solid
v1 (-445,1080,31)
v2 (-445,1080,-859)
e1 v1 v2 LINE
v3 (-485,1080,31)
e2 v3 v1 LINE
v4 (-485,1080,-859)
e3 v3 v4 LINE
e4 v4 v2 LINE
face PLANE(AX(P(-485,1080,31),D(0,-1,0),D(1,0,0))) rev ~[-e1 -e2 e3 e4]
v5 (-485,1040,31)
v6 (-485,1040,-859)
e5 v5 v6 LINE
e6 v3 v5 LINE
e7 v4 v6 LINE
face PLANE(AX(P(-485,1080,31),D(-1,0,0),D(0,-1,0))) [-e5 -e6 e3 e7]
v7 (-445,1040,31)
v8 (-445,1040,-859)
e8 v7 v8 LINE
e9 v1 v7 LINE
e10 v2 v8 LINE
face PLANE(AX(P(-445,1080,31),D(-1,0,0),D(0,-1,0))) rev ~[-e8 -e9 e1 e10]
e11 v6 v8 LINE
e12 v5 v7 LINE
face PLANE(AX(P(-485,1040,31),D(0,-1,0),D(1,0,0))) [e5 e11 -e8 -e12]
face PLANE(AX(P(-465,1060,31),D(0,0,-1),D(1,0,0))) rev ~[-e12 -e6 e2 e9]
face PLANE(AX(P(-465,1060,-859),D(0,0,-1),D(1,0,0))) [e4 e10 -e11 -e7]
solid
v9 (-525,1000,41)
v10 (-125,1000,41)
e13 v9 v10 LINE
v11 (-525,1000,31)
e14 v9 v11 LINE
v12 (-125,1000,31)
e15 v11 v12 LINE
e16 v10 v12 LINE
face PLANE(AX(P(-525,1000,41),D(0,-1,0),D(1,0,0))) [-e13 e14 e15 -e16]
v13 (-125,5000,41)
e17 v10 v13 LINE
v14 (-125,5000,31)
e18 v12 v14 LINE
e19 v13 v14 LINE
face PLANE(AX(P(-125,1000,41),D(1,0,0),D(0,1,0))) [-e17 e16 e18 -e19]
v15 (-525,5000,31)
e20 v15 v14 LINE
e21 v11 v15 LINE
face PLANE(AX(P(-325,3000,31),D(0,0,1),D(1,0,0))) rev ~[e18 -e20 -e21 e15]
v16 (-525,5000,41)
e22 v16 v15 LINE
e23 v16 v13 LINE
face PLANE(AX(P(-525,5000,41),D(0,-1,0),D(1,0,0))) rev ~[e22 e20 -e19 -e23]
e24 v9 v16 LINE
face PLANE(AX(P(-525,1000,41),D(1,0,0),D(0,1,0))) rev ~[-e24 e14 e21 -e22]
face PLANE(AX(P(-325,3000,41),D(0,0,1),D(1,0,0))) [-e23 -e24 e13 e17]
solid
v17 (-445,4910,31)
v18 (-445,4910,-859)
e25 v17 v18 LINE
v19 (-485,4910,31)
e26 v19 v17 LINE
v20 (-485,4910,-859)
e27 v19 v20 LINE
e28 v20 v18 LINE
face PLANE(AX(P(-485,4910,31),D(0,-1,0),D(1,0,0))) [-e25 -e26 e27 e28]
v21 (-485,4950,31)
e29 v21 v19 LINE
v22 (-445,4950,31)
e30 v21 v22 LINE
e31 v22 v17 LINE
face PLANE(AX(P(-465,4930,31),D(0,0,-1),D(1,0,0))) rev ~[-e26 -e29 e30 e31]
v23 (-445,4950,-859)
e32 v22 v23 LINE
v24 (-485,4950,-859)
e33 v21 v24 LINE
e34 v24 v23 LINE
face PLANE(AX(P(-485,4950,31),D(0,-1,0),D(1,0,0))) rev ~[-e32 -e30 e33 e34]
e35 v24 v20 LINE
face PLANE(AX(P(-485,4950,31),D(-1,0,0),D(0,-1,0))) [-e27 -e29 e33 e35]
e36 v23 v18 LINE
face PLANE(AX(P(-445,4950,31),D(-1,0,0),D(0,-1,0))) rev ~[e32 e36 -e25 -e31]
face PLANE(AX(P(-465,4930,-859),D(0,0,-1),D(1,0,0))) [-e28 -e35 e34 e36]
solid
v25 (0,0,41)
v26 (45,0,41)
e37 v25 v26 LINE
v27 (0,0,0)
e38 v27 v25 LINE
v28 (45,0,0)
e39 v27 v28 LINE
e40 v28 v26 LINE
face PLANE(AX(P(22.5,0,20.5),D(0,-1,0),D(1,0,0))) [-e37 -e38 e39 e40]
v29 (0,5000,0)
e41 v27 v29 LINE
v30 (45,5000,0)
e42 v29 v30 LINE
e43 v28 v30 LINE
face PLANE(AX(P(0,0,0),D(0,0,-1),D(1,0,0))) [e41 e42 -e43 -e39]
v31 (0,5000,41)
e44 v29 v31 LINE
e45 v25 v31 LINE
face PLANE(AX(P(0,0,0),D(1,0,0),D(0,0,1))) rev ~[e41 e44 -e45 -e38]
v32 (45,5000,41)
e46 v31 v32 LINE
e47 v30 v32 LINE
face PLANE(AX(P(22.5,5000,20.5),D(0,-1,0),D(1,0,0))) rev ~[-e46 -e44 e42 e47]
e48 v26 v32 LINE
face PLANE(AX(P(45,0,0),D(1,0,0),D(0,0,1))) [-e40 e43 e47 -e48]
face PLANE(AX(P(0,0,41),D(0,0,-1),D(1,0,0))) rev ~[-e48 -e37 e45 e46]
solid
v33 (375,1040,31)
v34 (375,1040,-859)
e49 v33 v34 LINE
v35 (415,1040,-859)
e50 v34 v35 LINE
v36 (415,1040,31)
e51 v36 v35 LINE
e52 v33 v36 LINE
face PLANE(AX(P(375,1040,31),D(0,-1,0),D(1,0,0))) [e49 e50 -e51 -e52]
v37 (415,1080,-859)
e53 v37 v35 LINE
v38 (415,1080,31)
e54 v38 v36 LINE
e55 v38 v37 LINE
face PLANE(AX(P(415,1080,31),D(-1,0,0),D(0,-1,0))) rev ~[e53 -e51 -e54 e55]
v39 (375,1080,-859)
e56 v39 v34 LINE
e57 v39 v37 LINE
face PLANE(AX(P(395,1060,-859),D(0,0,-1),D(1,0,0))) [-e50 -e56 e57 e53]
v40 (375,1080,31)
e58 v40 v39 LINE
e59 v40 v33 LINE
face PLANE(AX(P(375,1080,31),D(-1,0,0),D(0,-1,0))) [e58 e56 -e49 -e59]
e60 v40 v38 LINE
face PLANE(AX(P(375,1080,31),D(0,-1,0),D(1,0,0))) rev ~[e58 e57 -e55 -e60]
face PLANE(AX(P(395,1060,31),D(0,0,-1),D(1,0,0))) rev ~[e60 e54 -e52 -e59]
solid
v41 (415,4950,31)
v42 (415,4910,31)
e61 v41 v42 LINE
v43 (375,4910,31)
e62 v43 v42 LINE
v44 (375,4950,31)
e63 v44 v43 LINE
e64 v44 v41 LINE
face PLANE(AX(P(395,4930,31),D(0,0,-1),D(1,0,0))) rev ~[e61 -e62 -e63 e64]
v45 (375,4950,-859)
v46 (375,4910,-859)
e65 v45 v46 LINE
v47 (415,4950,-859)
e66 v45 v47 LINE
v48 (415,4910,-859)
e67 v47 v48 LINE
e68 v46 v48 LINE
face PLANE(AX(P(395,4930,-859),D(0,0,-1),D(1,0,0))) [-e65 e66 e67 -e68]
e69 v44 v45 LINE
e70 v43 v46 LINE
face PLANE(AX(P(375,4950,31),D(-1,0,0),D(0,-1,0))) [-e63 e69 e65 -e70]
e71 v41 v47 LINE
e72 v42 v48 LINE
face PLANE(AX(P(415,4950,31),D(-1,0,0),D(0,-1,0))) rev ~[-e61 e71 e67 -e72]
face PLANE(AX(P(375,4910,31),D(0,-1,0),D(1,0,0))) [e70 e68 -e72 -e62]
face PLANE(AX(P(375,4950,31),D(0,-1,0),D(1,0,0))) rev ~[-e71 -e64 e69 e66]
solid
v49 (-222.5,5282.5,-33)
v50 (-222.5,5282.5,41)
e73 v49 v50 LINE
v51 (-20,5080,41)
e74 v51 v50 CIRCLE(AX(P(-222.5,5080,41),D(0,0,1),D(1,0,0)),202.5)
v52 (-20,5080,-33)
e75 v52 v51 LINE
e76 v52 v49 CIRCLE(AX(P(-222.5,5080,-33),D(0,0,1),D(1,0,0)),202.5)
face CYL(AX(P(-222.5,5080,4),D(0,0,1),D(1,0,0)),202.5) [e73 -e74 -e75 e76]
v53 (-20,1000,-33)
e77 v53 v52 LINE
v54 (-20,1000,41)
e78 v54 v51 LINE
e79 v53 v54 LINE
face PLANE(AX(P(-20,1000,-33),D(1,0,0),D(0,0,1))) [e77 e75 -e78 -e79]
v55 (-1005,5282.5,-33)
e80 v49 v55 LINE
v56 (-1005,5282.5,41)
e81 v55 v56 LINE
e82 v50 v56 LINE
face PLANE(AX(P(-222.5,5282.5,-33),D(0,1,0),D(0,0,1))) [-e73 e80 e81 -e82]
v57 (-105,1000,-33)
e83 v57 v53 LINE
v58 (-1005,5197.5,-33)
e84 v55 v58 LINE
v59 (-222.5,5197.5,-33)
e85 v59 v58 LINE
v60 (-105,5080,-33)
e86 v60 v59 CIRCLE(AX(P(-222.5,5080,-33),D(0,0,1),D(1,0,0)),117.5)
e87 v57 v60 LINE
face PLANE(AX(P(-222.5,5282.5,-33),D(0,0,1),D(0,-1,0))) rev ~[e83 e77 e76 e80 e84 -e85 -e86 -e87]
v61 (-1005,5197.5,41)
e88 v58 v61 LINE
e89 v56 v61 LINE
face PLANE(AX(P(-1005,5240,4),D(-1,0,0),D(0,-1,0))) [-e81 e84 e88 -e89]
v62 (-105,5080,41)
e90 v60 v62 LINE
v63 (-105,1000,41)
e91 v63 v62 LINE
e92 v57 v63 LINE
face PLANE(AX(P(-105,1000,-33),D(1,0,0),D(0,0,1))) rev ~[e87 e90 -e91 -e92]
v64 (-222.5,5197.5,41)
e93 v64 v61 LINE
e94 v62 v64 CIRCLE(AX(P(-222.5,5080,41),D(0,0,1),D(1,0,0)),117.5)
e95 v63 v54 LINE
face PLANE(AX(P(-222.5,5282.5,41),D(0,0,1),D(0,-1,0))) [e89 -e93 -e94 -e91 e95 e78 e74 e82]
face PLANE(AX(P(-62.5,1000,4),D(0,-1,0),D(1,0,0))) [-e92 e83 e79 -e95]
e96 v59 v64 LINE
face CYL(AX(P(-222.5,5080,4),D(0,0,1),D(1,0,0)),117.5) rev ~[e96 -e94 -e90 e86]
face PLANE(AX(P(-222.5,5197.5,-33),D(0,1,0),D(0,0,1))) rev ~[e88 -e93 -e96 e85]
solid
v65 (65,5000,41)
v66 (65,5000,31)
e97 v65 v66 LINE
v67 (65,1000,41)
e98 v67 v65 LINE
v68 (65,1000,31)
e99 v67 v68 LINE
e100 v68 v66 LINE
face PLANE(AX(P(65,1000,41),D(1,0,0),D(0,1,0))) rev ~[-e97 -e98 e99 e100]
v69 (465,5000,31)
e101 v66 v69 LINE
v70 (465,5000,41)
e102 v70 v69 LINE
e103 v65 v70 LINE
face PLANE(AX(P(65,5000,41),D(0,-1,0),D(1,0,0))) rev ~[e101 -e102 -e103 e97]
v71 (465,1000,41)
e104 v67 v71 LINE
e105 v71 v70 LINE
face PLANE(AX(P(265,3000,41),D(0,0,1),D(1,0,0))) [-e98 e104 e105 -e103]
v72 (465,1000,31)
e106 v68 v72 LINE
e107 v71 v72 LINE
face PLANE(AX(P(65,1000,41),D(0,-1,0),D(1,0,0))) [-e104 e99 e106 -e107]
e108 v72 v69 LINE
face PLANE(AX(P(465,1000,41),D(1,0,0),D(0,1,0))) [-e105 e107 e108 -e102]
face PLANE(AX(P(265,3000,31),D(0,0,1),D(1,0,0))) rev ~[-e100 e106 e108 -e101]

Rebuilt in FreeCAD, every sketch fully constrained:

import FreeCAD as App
import Part
import Sketcher
from FreeCAD import Vector


def add_polygon(sketch, points):
    """Adds a closed chain of lines whose ends are joined by coincident constraints."""
    first, n = sketch.GeometryCount, len(points)
    for a, b in zip(points, points[1:] + points[:1]):
        sketch.addGeometry(Part.LineSegment(App.Vector(*a, 0), App.Vector(*b, 0)), False)
    for i in range(n):
        sketch.addConstraint(Sketcher.Constraint("Coincident", first + i, 2, first + (i + 1) % n, 1))

doc = App.newDocument("Part")
params = doc.addObject("Spreadsheet::Sheet", "Params")
for row, (alias, value) in enumerate([
    ("sketch1_width", "45 mm"),
    ("sketch1_height", "41 mm"),
    ("pad1_length", "5000 mm"),
    ("sketch2_width", "85 mm"),
    ("sketch2_height", "74 mm"),
    ("pad2_length", "4080 mm"),
    ("sketch3_width", "85 mm"),
    ("sketch3_height", "74 mm"),
    ("revolution_angle", "90 deg"),
    ("sketch4_width", "85 mm"),
    ("sketch4_height", "74 mm"),
    ("pad3_length", "782.5 mm"),
    ("sketch5_width", "400 mm"),
    ("sketch5_height", "4000 mm"),
    ("pad4_length", "10 mm"),
    ("sketch6_width", "40 mm"),
    ("pad5_length", "890 mm"),
], start=1):
    params.set(f"A{row}", alias)
    params.set(f"B{row}", "=" + value)
    params.setAlias(f"B{row}", alias)

body = doc.addObject("PartDesign::Body", "Body")

# Sketch on XZ plane
sketch1 = body.newObject("Sketcher::SketchObject", "Sketch")
sketch1.AttachmentSupport = (doc.getObject("XZ_Plane"), [""])
sketch1.MapMode = "FlatFace"
add_polygon(sketch1, [(0, 41), (0, 0), (45, 0), (45, 41)])  # lines 0-3
sketch1.addConstraint(Sketcher.Constraint("Vertical", 0))
sketch1.addConstraint(Sketcher.Constraint("Horizontal", 1))
sketch1.addConstraint(Sketcher.Constraint("Vertical", 2))
sketch1.addConstraint(Sketcher.Constraint("Horizontal", 3))
sketch1.addConstraint(Sketcher.Constraint("Coincident", 0, 2, -1, 1))
sketch1.addConstraint(Sketcher.Constraint("DistanceX", 1, 1, 1, 2, 45.0))
sketch1.addConstraint(Sketcher.Constraint("DistanceY", 0, 2, 0, 1, 41.0))
sketch1.setExpression("Constraints[9]", "Params.sketch1_width")
sketch1.setExpression("Constraints[10]", "Params.sketch1_height")
pad1 = body.newObject("PartDesign::Pad", "Pad")
pad1.Profile = sketch1
pad1.setExpression("Length", "Params.pad1_length")
pad1.Reversed = True
body2 = doc.addObject("PartDesign::Body", "Body001")

# Sketch on XZ plane
sketch2 = body2.newObject("Sketcher::SketchObject", "Sketch001")
sketch2.AttachmentSupport = (doc.getObject("XZ_Plane001"), [""])
sketch2.MapMode = "FlatFace"
sketch2.AttachmentOffset = App.Placement(Vector(0, 0, -1000), App.Rotation())
add_polygon(sketch2, [(-105, 41), (-105, -33), (-20, -33), (-20, 41)])  # lines 0-3
sketch2.addConstraint(Sketcher.Constraint("Vertical", 0))
sketch2.addConstraint(Sketcher.Constraint("Horizontal", 1))
sketch2.addConstraint(Sketcher.Constraint("Vertical", 2))
sketch2.addConstraint(Sketcher.Constraint("Horizontal", 3))
sketch2.addConstraint(Sketcher.Constraint("DistanceX", 1, 1, 1, 2, 85.0))
sketch2.addConstraint(Sketcher.Constraint("DistanceY", 0, 2, 0, 1, 74.0))
sketch2.addConstraint(Sketcher.Constraint("DistanceX", 0, 2, -1, 1, 105.0))
sketch2.addConstraint(Sketcher.Constraint("DistanceY", 0, 2, -1, 1, 33.0))
sketch2.setExpression("Constraints[8]", "Params.sketch2_width")
sketch2.setExpression("Constraints[9]", "Params.sketch2_height")
pad2 = body2.newObject("PartDesign::Pad", "Pad001")
pad2.Profile = sketch2
pad2.setExpression("Length", "Params.pad2_length")
pad2.Reversed = True

# Sketch on XZ plane
sketch3 = body2.newObject("Sketcher::SketchObject", "Sketch002")
sketch3.AttachmentSupport = (doc.getObject("XZ_Plane001"), [""])
sketch3.MapMode = "FlatFace"
sketch3.AttachmentOffset = App.Placement(Vector(0, 0, -5080), App.Rotation())
add_polygon(sketch3, [(-20, 41), (-20, -33), (-105, -33), (-105, 41)])  # lines 0-3
sketch3.addGeometry(Part.LineSegment(Vector(-222.5, 41, 0), Vector(-222.5, -33, 0)), True)  # axis
sketch3.addConstraint(Sketcher.Constraint("Vertical", 0))
sketch3.addConstraint(Sketcher.Constraint("Horizontal", 1))
sketch3.addConstraint(Sketcher.Constraint("Vertical", 2))
sketch3.addConstraint(Sketcher.Constraint("Horizontal", 3))
sketch3.addConstraint(Sketcher.Constraint("Vertical", 4))
sketch3.addConstraint(Sketcher.Constraint("Horizontal", 3, 2, 4, 1))
sketch3.addConstraint(Sketcher.Constraint("Horizontal", 1, 2, 4, 2))
sketch3.addConstraint(Sketcher.Constraint("DistanceX", 1, 2, 1, 1, 85.0))
sketch3.addConstraint(Sketcher.Constraint("DistanceY", 0, 2, 0, 1, 74.0))
sketch3.addConstraint(Sketcher.Constraint("DistanceX", 0, 2, -1, 1, 20.0))
sketch3.addConstraint(Sketcher.Constraint("DistanceY", 0, 2, -1, 1, 33.0))
sketch3.addConstraint(Sketcher.Constraint("DistanceX", 4, 1, -1, 1, 222.5))
sketch3.setExpression("Constraints[11]", "Params.sketch3_width")
sketch3.setExpression("Constraints[12]", "Params.sketch3_height")
revolution = body2.newObject("PartDesign::Revolution", "Revolution")
revolution.Profile = sketch3
revolution.ReferenceAxis = (sketch3, ["Axis0"])
revolution.setExpression("Angle", "Params.revolution_angle")
revolution.Reversed = True

# Sketch on YZ plane
sketch4 = body2.newObject("Sketcher::SketchObject", "Sketch003")
sketch4.AttachmentSupport = (doc.getObject("YZ_Plane001"), [""])
sketch4.MapMode = "FlatFace"
sketch4.AttachmentOffset = App.Placement(Vector(0, 0, -222.5), App.Rotation())
add_polygon(sketch4, [(5282.5, 41), (5282.5, -33), (5197.5, -33), (5197.5, 41)])  # lines 0-3
sketch4.addConstraint(Sketcher.Constraint("Vertical", 0))
sketch4.addConstraint(Sketcher.Constraint("Horizontal", 1))
sketch4.addConstraint(Sketcher.Constraint("Vertical", 2))
sketch4.addConstraint(Sketcher.Constraint("Horizontal", 3))
sketch4.addConstraint(Sketcher.Constraint("DistanceX", 1, 2, 1, 1, 85.0))
sketch4.addConstraint(Sketcher.Constraint("DistanceY", 0, 2, 0, 1, 74.0))
sketch4.addConstraint(Sketcher.Constraint("DistanceY", 0, 2, -1, 1, 33.0))
sketch4.addConstraint(Sketcher.Constraint("DistanceX", -1, 1, 0, 2, 5282.5))
sketch4.setExpression("Constraints[8]", "Params.sketch4_width")
sketch4.setExpression("Constraints[9]", "Params.sketch4_height")
pad3 = body2.newObject("PartDesign::Pad", "Pad002")
pad3.Profile = sketch4
pad3.setExpression("Length", "Params.pad3_length")
pad3.Reversed = True
body3 = doc.addObject("PartDesign::Body", "Body002")
body3.AllowCompound = True

# Sketch on XY plane
sketch5 = body3.newObject("Sketcher::SketchObject", "Sketch004")
sketch5.AttachmentSupport = (doc.getObject("XY_Plane002"), [""])
sketch5.MapMode = "FlatFace"
sketch5.AttachmentOffset = App.Placement(Vector(0, 0, 41), App.Rotation())
add_polygon(sketch5, [(-525, 5000), (-525, 1000), (-125, 1000), (-125, 5000)])  # lines 0-3
add_polygon(sketch5, [(65, 5000), (65, 1000), (465, 1000), (465, 5000)])  # lines 4-7
sketch5.addConstraint(Sketcher.Constraint("Vertical", 0))
sketch5.addConstraint(Sketcher.Constraint("Horizontal", 1))
sketch5.addConstraint(Sketcher.Constraint("Vertical", 2))
sketch5.addConstraint(Sketcher.Constraint("Horizontal", 3))
sketch5.addConstraint(Sketcher.Constraint("Vertical", 4))
sketch5.addConstraint(Sketcher.Constraint("Horizontal", 5))
sketch5.addConstraint(Sketcher.Constraint("Vertical", 6))
sketch5.addConstraint(Sketcher.Constraint("Horizontal", 7))
sketch5.addConstraint(Sketcher.Constraint("Horizontal", 1, 2, 4, 2))
sketch5.addConstraint(Sketcher.Constraint("Horizontal", 3, 2, 6, 2))
sketch5.addConstraint(Sketcher.Constraint("Equal", 3, 5))
sketch5.addConstraint(Sketcher.Constraint("DistanceX", 1, 1, 1, 2, 400.0))
sketch5.addConstraint(Sketcher.Constraint("DistanceY", 0, 2, 0, 1, 4000.0))
sketch5.addConstraint(Sketcher.Constraint("DistanceX", 0, 2, -1, 1, 525.0))
sketch5.addConstraint(Sketcher.Constraint("DistanceY", -1, 1, 0, 2, 1000.0))
sketch5.addConstraint(Sketcher.Constraint("DistanceX", -1, 1, 4, 2, 65.0))
sketch5.setExpression("Constraints[19]", "Params.sketch5_width")
sketch5.setExpression("Constraints[20]", "Params.sketch5_height")
pad4 = body3.newObject("PartDesign::Pad", "Pad003")
pad4.Profile = sketch5
pad4.setExpression("Length", "Params.pad4_length")
pad4.Reversed = True
body4 = doc.addObject("PartDesign::Body", "Body003")
body4.AllowCompound = True

# Sketch on XY plane
sketch6 = body4.newObject("Sketcher::SketchObject", "Sketch005")
sketch6.AttachmentSupport = (doc.getObject("XY_Plane003"), [""])
sketch6.MapMode = "FlatFace"
sketch6.AttachmentOffset = App.Placement(Vector(0, 0, 31), App.Rotation())
add_polygon(sketch6, [(-485, 4910), (-485, 4950), (-445, 4950), (-445, 4910)])  # lines 0-3
add_polygon(sketch6, [(375, 4910), (375, 4950), (415, 4950), (415, 4910)])  # lines 4-7
add_polygon(sketch6, [(375, 1040), (375, 1080), (415, 1080), (415, 1040)])  # lines 8-11
add_polygon(sketch6, [(-485, 1040), (-485, 1080), (-445, 1080), (-445, 1040)])  # lines 12-15
sketch6.addConstraint(Sketcher.Constraint("Vertical", 0))
sketch6.addConstraint(Sketcher.Constraint("Horizontal", 1))
sketch6.addConstraint(Sketcher.Constraint("Vertical", 2))
sketch6.addConstraint(Sketcher.Constraint("Horizontal", 3))
sketch6.addConstraint(Sketcher.Constraint("Vertical", 4))
sketch6.addConstraint(Sketcher.Constraint("Horizontal", 5))
sketch6.addConstraint(Sketcher.Constraint("Vertical", 6))
sketch6.addConstraint(Sketcher.Constraint("Horizontal", 7))
sketch6.addConstraint(Sketcher.Constraint("Vertical", 8))
sketch6.addConstraint(Sketcher.Constraint("Horizontal", 9))
sketch6.addConstraint(Sketcher.Constraint("Vertical", 10))
sketch6.addConstraint(Sketcher.Constraint("Horizontal", 11))
sketch6.addConstraint(Sketcher.Constraint("Vertical", 12))
sketch6.addConstraint(Sketcher.Constraint("Horizontal", 13))
sketch6.addConstraint(Sketcher.Constraint("Vertical", 14))
sketch6.addConstraint(Sketcher.Constraint("Horizontal", 15))
sketch6.addConstraint(Sketcher.Constraint("Horizontal", 1, 2, 4, 2))
sketch6.addConstraint(Sketcher.Constraint("Horizontal", 3, 2, 6, 2))
sketch6.addConstraint(Sketcher.Constraint("Horizontal", 9, 2, 12, 2))
sketch6.addConstraint(Sketcher.Constraint("Horizontal", 11, 2, 14, 2))
sketch6.addConstraint(Sketcher.Constraint("Vertical", 7, 2, 8, 2))
sketch6.addConstraint(Sketcher.Constraint("Vertical", 6, 2, 9, 2))
sketch6.addConstraint(Sketcher.Constraint("Vertical", 3, 2, 12, 2))
sketch6.addConstraint(Sketcher.Constraint("Vertical", 2, 2, 13, 2))
sketch6.addConstraint(Sketcher.Constraint("Equal", 3, 5))
sketch6.addConstraint(Sketcher.Constraint("Equal", 15, 0))
sketch6.addConstraint(Sketcher.Constraint("Equal", 6, 8))
sketch6.addConstraint(Sketcher.Constraint("DistanceX", 1, 1, 1, 2, 40.0))
sketch6.addConstraint(Sketcher.Constraint("DistanceX", 0, 2, -1, 1, 485.0))
sketch6.addConstraint(Sketcher.Constraint("DistanceY", -1, 1, 0, 2, 4950.0))
sketch6.addConstraint(Sketcher.Constraint("DistanceX", -1, 1, 4, 2, 375.0))
sketch6.addConstraint(Sketcher.Constraint("DistanceY", -1, 1, 8, 2, 1080.0))
sketch6.setExpression("Constraints[43]", "Params.sketch6_width")
pad5 = body4.newObject("PartDesign::Pad", "Pad004")
pad5.Profile = sketch6
pad5.setExpression("Length", "Params.pad5_length")
pad5.Reversed = True

doc.recompute()
